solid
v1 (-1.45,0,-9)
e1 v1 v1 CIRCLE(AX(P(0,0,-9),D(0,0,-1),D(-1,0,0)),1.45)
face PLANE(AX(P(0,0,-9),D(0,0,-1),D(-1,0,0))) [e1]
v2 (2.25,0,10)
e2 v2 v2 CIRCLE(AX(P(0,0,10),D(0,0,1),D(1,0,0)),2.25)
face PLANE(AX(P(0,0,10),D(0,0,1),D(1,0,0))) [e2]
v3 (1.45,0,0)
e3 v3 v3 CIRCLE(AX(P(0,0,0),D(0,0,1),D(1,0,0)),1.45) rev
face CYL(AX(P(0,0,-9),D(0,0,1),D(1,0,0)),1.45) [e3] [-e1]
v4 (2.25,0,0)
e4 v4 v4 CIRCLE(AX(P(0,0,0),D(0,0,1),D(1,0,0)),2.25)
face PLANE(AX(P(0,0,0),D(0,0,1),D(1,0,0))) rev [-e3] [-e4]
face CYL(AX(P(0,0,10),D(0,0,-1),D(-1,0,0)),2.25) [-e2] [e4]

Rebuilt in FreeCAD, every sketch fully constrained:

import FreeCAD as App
import Part
import Sketcher
Q = App.Units.Quantity

doc = App.newDocument("Part")
body = doc.addObject("PartDesign::Body", "Body")

# Sketch on XY plane
sketch1 = body.newObject("Sketcher::SketchObject", "Sketch")
sketch1.AttachmentSupport = (doc.getObject("XY_Plane"), [""])
sketch1.MapMode = "FlatFace"
sketch1.addGeometry(Part.Circle(App.Vector(0, 0, 0), App.Vector(0, 0, 1), 2.2), False)
sketch1.addConstraint(Sketcher.Constraint("Coincident", 0, 3, -1, 1))
sketch1.addConstraint(Sketcher.Constraint("Diameter", 0, Q("4.5 mm")))
pad1 = body.newObject("PartDesign::Pad", "Pad")
pad1.Profile = sketch1
pad1.Length = 10

# Sketch on XY plane
sketch2 = body.newObject("Sketcher::SketchObject", "Sketch001")
sketch2.AttachmentSupport = (doc.getObject("XY_Plane"), [""])
sketch2.MapMode = "FlatFace"
sketch2.addGeometry(Part.Circle(App.Vector(0, 0, 0), App.Vector(0, 0, 1), 1.4), False)
sketch2.addConstraint(Sketcher.Constraint("Coincident", 0, 3, -1, 1))
sketch2.addConstraint(Sketcher.Constraint("Diameter", 0, Q("2.9 mm")))
pad2 = body.newObject("PartDesign::Pad", "Pad001")
pad2.Profile = sketch2
pad2.Length = 9
pad2.Reversed = True

doc.recompute()
